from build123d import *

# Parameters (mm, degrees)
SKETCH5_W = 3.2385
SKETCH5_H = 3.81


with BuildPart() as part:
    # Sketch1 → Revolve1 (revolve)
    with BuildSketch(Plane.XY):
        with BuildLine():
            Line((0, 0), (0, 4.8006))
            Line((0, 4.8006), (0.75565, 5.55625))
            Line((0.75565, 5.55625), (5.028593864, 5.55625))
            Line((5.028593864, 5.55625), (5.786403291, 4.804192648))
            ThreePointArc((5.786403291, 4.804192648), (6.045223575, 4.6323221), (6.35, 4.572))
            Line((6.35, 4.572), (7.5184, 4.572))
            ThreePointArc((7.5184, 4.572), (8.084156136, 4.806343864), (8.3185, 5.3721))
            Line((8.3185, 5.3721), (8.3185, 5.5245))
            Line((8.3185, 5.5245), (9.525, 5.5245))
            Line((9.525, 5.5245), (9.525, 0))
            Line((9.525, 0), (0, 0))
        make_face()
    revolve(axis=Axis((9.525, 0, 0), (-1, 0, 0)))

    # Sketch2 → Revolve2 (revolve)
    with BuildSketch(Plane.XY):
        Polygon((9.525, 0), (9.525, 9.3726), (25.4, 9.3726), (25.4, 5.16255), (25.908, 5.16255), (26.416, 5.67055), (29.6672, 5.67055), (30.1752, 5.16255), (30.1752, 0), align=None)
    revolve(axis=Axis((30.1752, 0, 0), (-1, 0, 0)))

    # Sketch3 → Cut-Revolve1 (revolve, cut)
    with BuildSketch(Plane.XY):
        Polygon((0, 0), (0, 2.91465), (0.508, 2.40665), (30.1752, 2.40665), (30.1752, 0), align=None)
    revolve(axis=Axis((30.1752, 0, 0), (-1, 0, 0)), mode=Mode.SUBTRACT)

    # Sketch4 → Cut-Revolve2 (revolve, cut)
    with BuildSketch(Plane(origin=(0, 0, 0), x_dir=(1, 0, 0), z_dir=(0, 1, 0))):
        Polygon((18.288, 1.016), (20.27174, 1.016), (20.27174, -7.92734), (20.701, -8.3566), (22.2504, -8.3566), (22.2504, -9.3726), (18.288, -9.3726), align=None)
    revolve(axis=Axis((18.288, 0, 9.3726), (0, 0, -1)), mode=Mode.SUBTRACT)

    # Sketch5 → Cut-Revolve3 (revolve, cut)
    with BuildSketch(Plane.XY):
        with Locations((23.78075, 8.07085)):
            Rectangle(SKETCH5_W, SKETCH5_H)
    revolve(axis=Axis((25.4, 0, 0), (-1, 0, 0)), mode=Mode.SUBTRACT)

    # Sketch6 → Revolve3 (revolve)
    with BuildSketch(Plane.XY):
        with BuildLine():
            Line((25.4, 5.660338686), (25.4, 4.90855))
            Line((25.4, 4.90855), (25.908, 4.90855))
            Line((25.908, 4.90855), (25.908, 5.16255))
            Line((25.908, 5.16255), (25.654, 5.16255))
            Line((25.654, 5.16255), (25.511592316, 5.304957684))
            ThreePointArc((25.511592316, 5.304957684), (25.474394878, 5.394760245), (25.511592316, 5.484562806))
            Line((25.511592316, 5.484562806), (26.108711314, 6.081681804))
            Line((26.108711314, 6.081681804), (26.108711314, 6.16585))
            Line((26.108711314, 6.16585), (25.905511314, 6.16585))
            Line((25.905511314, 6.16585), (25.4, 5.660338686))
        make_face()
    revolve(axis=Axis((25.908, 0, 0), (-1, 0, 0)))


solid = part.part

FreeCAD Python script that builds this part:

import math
import FreeCAD as App
import Part
import Sketcher
Q = App.Units.Quantity

doc = App.newDocument("Part")
body = doc.addObject("PartDesign::Body", "Body")

# Sketch on XY plane
sketch1 = body.newObject("Sketcher::SketchObject", "Sketch")
sketch1.AttachmentSupport = (doc.getObject("XY_Plane"), [""])
sketch1.MapMode = "FlatFace"
sketch1.addGeometry([
    Part.LineSegment(App.Vector(0, 4.8, 0), App.Vector(0, 0, 0)),  # 0
    Part.LineSegment(App.Vector(0, 0, 0), App.Vector(9.53, 0, 0)),  # 1
    Part.LineSegment(App.Vector(9.53, 0, 0), App.Vector(9.53, 5.52, 0)),  # 2
    Part.LineSegment(App.Vector(9.53, 5.52, 0), App.Vector(8.32, 5.52, 0)),  # 3
    Part.LineSegment(App.Vector(8.32, 5.52, 0), App.Vector(8.32, 5.37, 0)),  # 4
    Part.ArcOfCircle(Part.Circle(App.Vector(7.52, 5.37, 0), App.Vector(0, 0, 1), 0.8), math.radians(-90), math.radians(0)),  # 5
    Part.LineSegment(App.Vector(7.52, 4.57, 0), App.Vector(6.35, 4.57, 0)),  # 6
    Part.ArcOfCircle(Part.Circle(App.Vector(6.35, 5.37, 0), App.Vector(0, 0, 1), 0.8), math.radians(-135), math.radians(-90)),  # 7
    Part.LineSegment(App.Vector(5.79, 4.8, 0), App.Vector(5.03, 5.56, 0)),  # 8
    Part.LineSegment(App.Vector(5.03, 5.56, 0), App.Vector(0.76, 5.56, 0)),  # 9
    Part.LineSegment(App.Vector(0.76, 5.56, 0), App.Vector(0, 4.8, 0)),  # 10
], False)
sketch1.addConstraint([
    Sketcher.Constraint("Coincident", 0, 2, 1, 1),
    Sketcher.Constraint("Coincident", 1, 2, 2, 1),
    Sketcher.Constraint("Coincident", 2, 2, 3, 1),
    Sketcher.Constraint("Coincident", 3, 2, 4, 1),
    Sketcher.Constraint("Tangent", 4, 2, 5, 2),
    Sketcher.Constraint("Tangent", 5, 1, 6, 1),
    Sketcher.Constraint("Tangent", 6, 2, 7, 2),
    Sketcher.Constraint("Tangent", 7, 1, 8, 1),
    Sketcher.Constraint("Coincident", 8, 2, 9, 1),
    Sketcher.Constraint("Coincident", 9, 2, 10, 1),
    Sketcher.Constraint("Coincident", 10, 2, 0, 1),
    Sketcher.Constraint("Vertical", 0),
    Sketcher.Constraint("Horizontal", 1),
    Sketcher.Constraint("Vertical", 2),
    Sketcher.Constraint("Horizontal", 3),
    Sketcher.Constraint("Vertical", 4),
    Sketcher.Constraint("Horizontal", 6),
    Sketcher.Constraint("Horizontal", 9),
    Sketcher.Constraint("Coincident", 0, 2, -1, 1),
    Sketcher.Constraint("Equal", 5, 7),
    Sketcher.Constraint("Angle", 10, Q("-135 deg")),
    Sketcher.Constraint("Radius", 5, Q("0.0315 in")),
    Sketcher.Constraint("DistanceX", 1, 1, 1, 2, Q("0.375 in")),
    Sketcher.Constraint("DistanceX", 6, 2, 6, 1, Q("0.046 in")),
    Sketcher.Constraint("DistanceY", 0, 2, 0, 1, Q("0.189 in")),
    Sketcher.Constraint("DistanceY", 4, 2, 4, 1, Q("0.006 in")),
    Sketcher.Constraint("DistanceX", -1, 1, 7, 3, Q("0.25 in")),
    Sketcher.Constraint("DistanceY", -1, 1, 5, 1, Q("0.18 in")),
    Sketcher.Constraint("DistanceY", -1, 1, 8, 2, Q("0.21875 in")),
    Sketcher.Constraint("DistanceX", 9, 2, 9, 1, 4.272944),
])
revolution = body.newObject("PartDesign::Revolution", "Revolution")
revolution.Profile = sketch1
revolution.ReferenceAxis = (sketch1, ["H_Axis"])
revolution.Angle = 360

# Sketch on XY plane
sketch2 = body.newObject("Sketcher::SketchObject", "Sketch001")
sketch2.AttachmentSupport = (doc.getObject("XY_Plane"), [""])
sketch2.MapMode = "FlatFace"
sketch2.addGeometry([
    Part.LineSegment(App.Vector(9.5, 9.4, 0), App.Vector(9.5, 0, 0)),  # 0
    Part.LineSegment(App.Vector(9.5, 0, 0), App.Vector(30.2, 0, 0)),  # 1
    Part.LineSegment(App.Vector(30.2, 0, 0), App.Vector(30.2, 5.2, 0)),  # 2
    Part.LineSegment(App.Vector(30.2, 5.2, 0), App.Vector(29.7, 5.7, 0)),  # 3
    Part.LineSegment(App.Vector(29.7, 5.7, 0), App.Vector(26.4, 5.7, 0)),  # 4
    Part.LineSegment(App.Vector(26.4, 5.7, 0), App.Vector(25.9, 5.2, 0)),  # 5
    Part.LineSegment(App.Vector(25.9, 5.2, 0), App.Vector(25.4, 5.2, 0)),  # 6
    Part.LineSegment(App.Vector(25.4, 5.2, 0), App.Vector(25.4, 9.4, 0)),  # 7
    Part.LineSegment(App.Vector(25.4, 9.4, 0), App.Vector(9.5, 9.4, 0)),  # 8
], False)
sketch2.addConstraint([
    Sketcher.Constraint("Coincident", 0, 2, 1, 1),
    Sketcher.Constraint("Coincident", 1, 2, 2, 1),
    Sketcher.Constraint("Coincident", 2, 2, 3, 1),
    Sketcher.Constraint("Coincident", 3, 2, 4, 1),
    Sketcher.Constraint("Coincident", 4, 2, 5, 1),
    Sketcher.Constraint("Coincident", 5, 2, 6, 1),
    Sketcher.Constraint("Coincident", 6, 2, 7, 1),
    Sketcher.Constraint("Coincident", 7, 2, 8, 1),
    Sketcher.Constraint("Coincident", 8, 2, 0, 1),
    Sketcher.Constraint("Vertical", 0),
    Sketcher.Constraint("Horizontal", 1),
    Sketcher.Constraint("Vertical", 2),
    Sketcher.Constraint("Horizontal", 4),
    Sketcher.Constraint("Horizontal", 6),
    Sketcher.Constraint("Vertical", 7),
    Sketcher.Constraint("Horizontal", 8),
    Sketcher.Constraint("PointOnObject", 0, 2, -1),
    Sketcher.Constraint("Perpendicular", 3, 5),
    Sketcher.Constraint("Horizontal", 2, 2, 5, 2),
    Sketcher.Constraint("Equal", 3, 5),
    Sketcher.Constraint("DistanceX", -1, 1, 6, 2, Q("1 in")),
    Sketcher.Constraint("DistanceX", 6, 2, 6, 1, Q("0.02 in")),
    Sketcher.Constraint("DistanceX", 1, 1, 1, 2, Q("0.813 in")),
    Sketcher.Constraint("DistanceX", 4, 2, 4, 1, Q("0.128 in")),
    Sketcher.Constraint("DistanceX", 8, 2, 8, 1, Q("0.625 in")),
    Sketcher.Constraint("DistanceY", 0, 2, 0, 1, Q("0.369 in")),
    Sketcher.Constraint("DistanceY", 2, 1, 2, 2, 5.16255),
])
revolution2 = body.newObject("PartDesign::Revolution", "Revolution001")
revolution2.Profile = sketch2
revolution2.ReferenceAxis = (sketch2, ["H_Axis"])
revolution2.Angle = 360

# Sketch on XY plane
sketch3 = body.newObject("Sketcher::SketchObject", "Sketch002")
sketch3.AttachmentSupport = (doc.getObject("XY_Plane"), [""])
sketch3.MapMode = "FlatFace"
sketch3.addGeometry([
    Part.LineSegment(App.Vector(0, 2.9, 0), App.Vector(0, 0, 0)),  # 0
    Part.LineSegment(App.Vector(0, 0, 0), App.Vector(30.2, 0, 0)),  # 1
    Part.LineSegment(App.Vector(30.2, 0, 0), App.Vector(30.2, 2.4, 0)),  # 2
    Part.LineSegment(App.Vector(30.2, 2.4, 0), App.Vector(0.5, 2.4, 0)),  # 3
    Part.LineSegment(App.Vector(0.5, 2.4, 0), App.Vector(0, 2.9, 0)),  # 4
], False)
sketch3.addConstraint([
    Sketcher.Constraint("Coincident", 0, 2, 1, 1),
    Sketcher.Constraint("Coincident", 1, 2, 2, 1),
    Sketcher.Constraint("Coincident", 2, 2, 3, 1),
    Sketcher.Constraint("Coincident", 3, 2, 4, 1),
    Sketcher.Constraint("Coincident", 4, 2, 0, 1),
    Sketcher.Constraint("Vertical", 0),
    Sketcher.Constraint("Horizontal", 1),
    Sketcher.Constraint("Vertical", 2),
    Sketcher.Constraint("Horizontal", 3),
    Sketcher.Constraint("Coincident", 0, 2, -1, 1),
    Sketcher.Constraint("Angle", 4, Q("135 deg")),
    Sketcher.Constraint("DistanceX", 1, 1, 1, 2, Q("1.188 in")),
    Sketcher.Constraint("DistanceX", 3, 2, 3, 1, Q("1.168 in")),
    Sketcher.Constraint("DistanceY", 0, 2, 0, 1, 2.91465),
])
groove = body.newObject("PartDesign::Groove", "Groove")
groove.Profile = sketch3
groove.ReferenceAxis = (sketch3, ["H_Axis"])
groove.Angle = 360

# Sketch on XZ plane
sketch4 = body.newObject("Sketcher::SketchObject", "Sketch003")
sketch4.AttachmentSupport = (doc.getObject("XZ_Plane"), [""])
sketch4.MapMode = "FlatFace"
sketch4.addGeometry([
    Part.LineSegment(App.Vector(20.3, -1, 0), App.Vector(18.3, -1, 0)),  # 0
    Part.LineSegment(App.Vector(18.3, -1, 0), App.Vector(18.3, 9.4, 0)),  # 1
    Part.LineSegment(App.Vector(18.3, 9.4, 0), App.Vector(22.3, 9.4, 0)),  # 2
    Part.LineSegment(App.Vector(22.3, 9.4, 0), App.Vector(22.3, 8.4, 0)),  # 3
    Part.LineSegment(App.Vector(22.3, 8.4, 0), App.Vector(20.7, 8.4, 0)),  # 4
    Part.LineSegment(App.Vector(20.7, 8.4, 0), App.Vector(20.3, 7.9, 0)),  # 5
    Part.LineSegment(App.Vector(20.3, 7.9, 0), App.Vector(20.3, -1, 0)),  # 6
], False)
sketch4.addGeometry(Part.LineSegment(App.Vector(18.3, 9.4, 0), App.Vector(18.3, -1, 0)), True)  # axis
sketch4.addConstraint([
    Sketcher.Constraint("Coincident", 0, 2, 1, 1),
    Sketcher.Constraint("Coincident", 1, 2, 2, 1),
    Sketcher.Constraint("Coincident", 2, 2, 3, 1),
    Sketcher.Constraint("Coincident", 3, 2, 4, 1),
    Sketcher.Constraint("Coincident", 4, 2, 5, 1),
    Sketcher.Constraint("Coincident", 5, 2, 6, 1),
    Sketcher.Constraint("Coincident", 6, 2, 0, 1),
    Sketcher.Constraint("Horizontal", 0),
    Sketcher.Constraint("Vertical", 1),
    Sketcher.Constraint("Horizontal", 2),
    Sketcher.Constraint("Vertical", 3),
    Sketcher.Constraint("Horizontal", 4),
    Sketcher.Constraint("Vertical", 6),
    Sketcher.Constraint("Vertical", 7),
    Sketcher.Constraint("Coincident", 7, 1, 1, 2),
    Sketcher.Constraint("Horizontal", 6, 2, 7, 2),
    Sketcher.Constraint("Angle", 5, Q("-135 deg")),
    Sketcher.Constraint("DistanceY", 3, 2, 3, 1, Q("0.04 in")),
    Sketcher.Constraint("DistanceX", 2, 1, 2, 2, Q("0.156 in")),
    Sketcher.Constraint("DistanceX", 4, 2, 4, 1, Q("0.061 in")),
    Sketcher.Constraint("DistanceY", 1, 1, 1, 2, Q("0.409 in")),
    Sketcher.Constraint("DistanceX", -1, 1, 0, 2, Q("0.72 in")),
    Sketcher.Constraint("DistanceY", 0, 2, -1, 1, Q("0.04 in")),
    Sketcher.Constraint("DistanceX", 0, 2, 0, 1, Q("0.0781 in")),
])
groove2 = body.newObject("PartDesign::Groove", "Groove001")
groove2.Profile = sketch4
groove2.ReferenceAxis = (sketch4, ["Axis0"])
groove2.Angle = 360

# Sketch on XY plane
sketch5 = body.newObject("Sketcher::SketchObject", "Sketch004")
sketch5.AttachmentSupport = (doc.getObject("XY_Plane"), [""])
sketch5.MapMode = "FlatFace"
sketch5.addGeometry([
    Part.LineSegment(App.Vector(22.2, 10, 0), App.Vector(22.2, 6.2, 0)),
    Part.LineSegment(App.Vector(22.2, 6.2, 0), App.Vector(25.4, 6.2, 0)),
    Part.LineSegment(App.Vector(25.4, 6.2, 0), App.Vector(25.4, 10, 0)),
    Part.LineSegment(App.Vector(25.4, 10, 0), App.Vector(22.2, 10, 0)),
], False)
sketch5.addConstraint([
    Sketcher.Constraint("Coincident", 0, 2, 1, 1),
    Sketcher.Constraint("Coincident", 1, 2, 2, 1),
    Sketcher.Constraint("Coincident", 2, 2, 3, 1),
    Sketcher.Constraint("Coincident", 3, 2, 0, 1),
    Sketcher.Constraint("Vertical", 0),
    Sketcher.Constraint("Horizontal", 1),
    Sketcher.Constraint("Vertical", 2),
    Sketcher.Constraint("Horizontal", 3),
    Sketcher.Constraint("DistanceX", -1, 1, 1, 2, Q("1 in")),
    Sketcher.Constraint("DistanceY", 0, 2, 0, 1, Q("0.15 in")),
    Sketcher.Constraint("DistanceX", 1, 1, 1, 2, Q("0.1275 in")),
    Sketcher.Constraint("DistanceY", -1, 1, 0, 2, 6.16585),
])
groove3 = body.newObject("PartDesign::Groove", "Groove002")
groove3.Profile = sketch5
groove3.ReferenceAxis = (sketch5, ["H_Axis"])
groove3.Angle = 360

# Sketch on XY plane
sketch6 = body.newObject("Sketcher::SketchObject", "Sketch005")
sketch6.AttachmentSupport = (doc.getObject("XY_Plane"), [""])
sketch6.MapMode = "FlatFace"
sketch6.addGeometry([
    Part.LineSegment(App.Vector(25.4, 5.66, 0), App.Vector(25.4, 4.91, 0)),  # 0
    Part.LineSegment(App.Vector(25.4, 4.91, 0), App.Vector(25.91, 4.91, 0)),  # 1
    Part.LineSegment(App.Vector(25.91, 4.91, 0), App.Vector(25.91, 5.16, 0)),  # 2
    Part.LineSegment(App.Vector(25.91, 5.16, 0), App.Vector(25.65, 5.16, 0)),  # 3
    Part.LineSegment(App.Vector(25.65, 5.16, 0), App.Vector(25.51, 5.3, 0)),  # 4
    Part.ArcOfCircle(Part.Circle(App.Vector(25.6, 5.39, 0), App.Vector(0, 0, 1), 0.13), math.radians(135), math.radians(225)),  # 5
    Part.LineSegment(App.Vector(25.51, 5.48, 0), App.Vector(26.11, 6.08, 0)),  # 6
    Part.LineSegment(App.Vector(26.11, 6.08, 0), App.Vector(26.11, 6.17, 0)),  # 7
    Part.LineSegment(App.Vector(26.11, 6.17, 0), App.Vector(25.91, 6.17, 0)),  # 8
    Part.LineSegment(App.Vector(25.91, 6.17, 0), App.Vector(25.4, 5.66, 0)),  # 9
], False)
sketch6.addConstraint([
    Sketcher.Constraint("Coincident", 0, 2, 1, 1),
    Sketcher.Constraint("Coincident", 1, 2, 2, 1),
    Sketcher.Constraint("Coincident", 2, 2, 3, 1),
    Sketcher.Constraint("Coincident", 3, 2, 4, 1),
    Sketcher.Constraint("Tangent", 4, 2, 5, 2),
    Sketcher.Constraint("Tangent", 5, 1, 6, 1),
    Sketcher.Constraint("Coincident", 6, 2, 7, 1),
    Sketcher.Constraint("Coincident", 7, 2, 8, 1),
    Sketcher.Constraint("Coincident", 8, 2, 9, 1),
    Sketcher.Constraint("Coincident", 9, 2, 0, 1),
    Sketcher.Constraint("Vertical", 0),
    Sketcher.Constraint("Horizontal", 1),
    Sketcher.Constraint("Vertical", 2),
    Sketcher.Constraint("Horizontal", 3),
    Sketcher.Constraint("Vertical", 7),
    Sketcher.Constraint("Horizontal", 8),
    Sketcher.Constraint("Perpendicular", 4, 6),
    Sketcher.Constraint("Parallel", 6, 9),
    Sketcher.Constraint("Vertical", 4, 2, 5, 1),
    Sketcher.Constraint("Equal", 3, 2),
    Sketcher.Constraint("DistanceX", -1, 1, 0, 2, Q("1 in")),
    Sketcher.Constraint("Radius", 5, Q("0.005 in")),
    Sketcher.Constraint("DistanceX", 1, 1, 1, 2, Q("0.02 in")),
    Sketcher.Constraint("DistanceX", 3, 2, 3, 1, Q("0.01 in")),
    Sketcher.Constraint("DistanceX", 8, 2, 8, 1, Q("0.008 in")),
    Sketcher.Constraint("DistanceY", 2, 2, 7, 2, Q("0.0395 in")),
    Sketcher.Constraint("Distance", 9, 0.714901),
    Sketcher.Constraint("DistanceY", 7, 1, 7, 2, 0.084168),
    Sketcher.Constraint("DistanceY", -1, 1, 5, 3, 5.39476),
])
revolution3 = body.newObject("PartDesign::Revolution", "Revolution002")
revolution3.Profile = sketch6
revolution3.ReferenceAxis = (sketch6, ["H_Axis"])
revolution3.Angle = 360

doc.recompute()
